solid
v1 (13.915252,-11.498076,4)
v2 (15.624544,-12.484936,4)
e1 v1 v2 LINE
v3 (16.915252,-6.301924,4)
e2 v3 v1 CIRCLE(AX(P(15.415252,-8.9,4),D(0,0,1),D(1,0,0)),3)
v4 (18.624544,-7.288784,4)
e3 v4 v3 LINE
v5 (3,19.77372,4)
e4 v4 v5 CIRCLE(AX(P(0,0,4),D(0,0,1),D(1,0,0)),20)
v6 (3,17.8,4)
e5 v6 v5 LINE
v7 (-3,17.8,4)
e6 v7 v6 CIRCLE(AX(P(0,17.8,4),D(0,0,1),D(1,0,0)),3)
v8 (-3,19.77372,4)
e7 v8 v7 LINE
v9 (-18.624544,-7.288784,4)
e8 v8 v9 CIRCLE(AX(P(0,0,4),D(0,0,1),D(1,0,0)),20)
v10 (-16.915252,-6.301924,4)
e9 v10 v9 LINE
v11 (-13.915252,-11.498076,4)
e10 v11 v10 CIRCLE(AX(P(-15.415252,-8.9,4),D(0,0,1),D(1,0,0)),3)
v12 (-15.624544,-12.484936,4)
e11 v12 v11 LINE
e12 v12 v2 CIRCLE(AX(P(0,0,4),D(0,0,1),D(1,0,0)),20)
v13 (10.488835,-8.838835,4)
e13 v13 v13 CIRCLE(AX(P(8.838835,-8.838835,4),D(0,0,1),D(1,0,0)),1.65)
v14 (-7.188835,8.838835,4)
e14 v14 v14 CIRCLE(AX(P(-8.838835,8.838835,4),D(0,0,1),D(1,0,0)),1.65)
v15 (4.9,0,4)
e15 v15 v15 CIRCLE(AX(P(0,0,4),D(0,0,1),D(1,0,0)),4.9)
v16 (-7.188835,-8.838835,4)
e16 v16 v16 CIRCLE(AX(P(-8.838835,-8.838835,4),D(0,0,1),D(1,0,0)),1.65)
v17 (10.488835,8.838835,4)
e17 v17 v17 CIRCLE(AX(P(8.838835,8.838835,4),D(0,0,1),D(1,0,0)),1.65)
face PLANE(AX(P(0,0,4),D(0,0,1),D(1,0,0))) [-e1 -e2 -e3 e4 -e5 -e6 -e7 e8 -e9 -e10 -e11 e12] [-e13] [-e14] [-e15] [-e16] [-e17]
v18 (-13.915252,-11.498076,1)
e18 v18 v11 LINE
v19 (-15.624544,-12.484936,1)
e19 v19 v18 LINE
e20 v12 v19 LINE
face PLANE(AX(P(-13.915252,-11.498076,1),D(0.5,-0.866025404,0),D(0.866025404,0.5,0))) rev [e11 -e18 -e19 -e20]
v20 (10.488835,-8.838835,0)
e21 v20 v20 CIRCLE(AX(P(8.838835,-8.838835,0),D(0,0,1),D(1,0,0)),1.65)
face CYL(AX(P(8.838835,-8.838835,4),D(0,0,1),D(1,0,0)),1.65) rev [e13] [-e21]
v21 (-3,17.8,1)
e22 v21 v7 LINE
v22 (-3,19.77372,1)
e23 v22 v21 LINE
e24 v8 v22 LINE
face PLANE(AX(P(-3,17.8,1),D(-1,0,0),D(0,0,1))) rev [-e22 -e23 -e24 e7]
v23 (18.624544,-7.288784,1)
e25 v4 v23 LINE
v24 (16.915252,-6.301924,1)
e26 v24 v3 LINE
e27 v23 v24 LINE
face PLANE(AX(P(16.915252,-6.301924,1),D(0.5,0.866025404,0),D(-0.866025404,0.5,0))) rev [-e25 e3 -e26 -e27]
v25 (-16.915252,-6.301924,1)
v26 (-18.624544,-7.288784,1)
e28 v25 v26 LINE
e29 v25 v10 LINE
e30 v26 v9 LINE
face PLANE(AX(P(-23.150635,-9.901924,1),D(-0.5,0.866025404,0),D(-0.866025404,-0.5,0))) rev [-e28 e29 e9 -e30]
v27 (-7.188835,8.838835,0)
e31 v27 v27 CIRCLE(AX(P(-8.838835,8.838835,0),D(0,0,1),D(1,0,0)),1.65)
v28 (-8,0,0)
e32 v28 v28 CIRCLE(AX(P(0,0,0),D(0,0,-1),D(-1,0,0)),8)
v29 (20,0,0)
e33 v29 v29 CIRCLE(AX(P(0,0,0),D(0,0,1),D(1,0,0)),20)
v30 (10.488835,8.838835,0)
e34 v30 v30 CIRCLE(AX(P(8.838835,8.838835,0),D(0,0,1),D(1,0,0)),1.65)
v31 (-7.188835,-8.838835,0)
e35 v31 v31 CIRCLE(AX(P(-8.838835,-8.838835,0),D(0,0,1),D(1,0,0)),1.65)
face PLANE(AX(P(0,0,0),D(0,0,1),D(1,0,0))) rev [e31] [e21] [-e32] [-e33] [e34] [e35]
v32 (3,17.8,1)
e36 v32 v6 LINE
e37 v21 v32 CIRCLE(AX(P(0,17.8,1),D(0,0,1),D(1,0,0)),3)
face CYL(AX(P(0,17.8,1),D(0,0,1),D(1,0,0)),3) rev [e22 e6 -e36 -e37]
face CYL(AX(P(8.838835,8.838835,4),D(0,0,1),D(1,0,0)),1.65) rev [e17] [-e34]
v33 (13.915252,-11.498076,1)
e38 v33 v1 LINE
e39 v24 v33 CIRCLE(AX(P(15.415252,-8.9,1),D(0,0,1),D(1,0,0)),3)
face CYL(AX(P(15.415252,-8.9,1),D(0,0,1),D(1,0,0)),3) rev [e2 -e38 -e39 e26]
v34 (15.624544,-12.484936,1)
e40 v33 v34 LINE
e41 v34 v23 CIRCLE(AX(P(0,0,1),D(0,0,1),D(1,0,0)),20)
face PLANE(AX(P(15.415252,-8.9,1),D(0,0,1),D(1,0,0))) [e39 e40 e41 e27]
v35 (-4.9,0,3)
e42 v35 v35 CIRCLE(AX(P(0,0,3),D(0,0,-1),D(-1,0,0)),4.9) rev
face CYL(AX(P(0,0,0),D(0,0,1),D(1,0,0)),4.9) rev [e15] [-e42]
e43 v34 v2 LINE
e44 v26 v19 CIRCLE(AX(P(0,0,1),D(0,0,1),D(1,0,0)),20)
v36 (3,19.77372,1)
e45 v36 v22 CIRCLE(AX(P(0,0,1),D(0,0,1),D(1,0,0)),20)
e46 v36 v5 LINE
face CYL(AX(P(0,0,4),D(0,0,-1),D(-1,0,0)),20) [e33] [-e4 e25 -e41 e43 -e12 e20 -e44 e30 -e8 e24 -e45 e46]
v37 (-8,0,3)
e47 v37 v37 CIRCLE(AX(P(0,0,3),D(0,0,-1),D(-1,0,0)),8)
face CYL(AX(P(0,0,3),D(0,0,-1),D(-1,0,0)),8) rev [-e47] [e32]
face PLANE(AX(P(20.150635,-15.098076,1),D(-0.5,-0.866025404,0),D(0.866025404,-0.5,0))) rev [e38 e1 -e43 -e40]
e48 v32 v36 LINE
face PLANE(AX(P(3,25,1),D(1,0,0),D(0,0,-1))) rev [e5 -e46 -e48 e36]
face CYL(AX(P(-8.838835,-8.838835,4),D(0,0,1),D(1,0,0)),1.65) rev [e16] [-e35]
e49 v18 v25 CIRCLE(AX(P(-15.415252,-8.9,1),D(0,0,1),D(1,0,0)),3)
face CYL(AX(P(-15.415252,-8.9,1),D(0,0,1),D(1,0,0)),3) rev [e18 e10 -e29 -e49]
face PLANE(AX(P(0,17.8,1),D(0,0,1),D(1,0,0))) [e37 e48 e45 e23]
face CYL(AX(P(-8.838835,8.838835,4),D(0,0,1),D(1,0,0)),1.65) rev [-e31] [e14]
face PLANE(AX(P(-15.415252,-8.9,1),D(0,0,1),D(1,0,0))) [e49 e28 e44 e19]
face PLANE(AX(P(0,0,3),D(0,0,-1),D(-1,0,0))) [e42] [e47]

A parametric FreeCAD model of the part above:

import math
import FreeCAD as App
import Part
import Sketcher

V = App.Vector
Q = App.Units.Quantity

doc = App.newDocument("Part")
params = doc.addObject("Spreadsheet::Sheet", "Params")
for row, (alias, value) in enumerate([
    ("sketch1_diameter", "40 mm"),
    ("pad1_length", "4 mm"),
    ("sketch2_radius", "3 mm"),
    ("sketch2_height", "7.2 mm"),
    ("sketch2_length", "7.2 mm"),
    ("pocket1_length", "3 mm"),
    ("sketch3_diameter", "3.3 mm"),
    ("hole_diameter", "3.3 mm"),
    ("sketch4_diameter", "9.8 mm"),
    ("sketch5_diameter", "16 mm"),
    ("pocket3_length", "3 mm"),
], start=1):
    params.set(f"A{row}", alias)
    params.set(f"B{row}", "=" + value)
    params.setAlias(f"B{row}", alias)

body = doc.addObject("PartDesign::Body", "Body")

# Sketch on XY plane
sketch1 = body.newObject("Sketcher::SketchObject", "Sketch")
sketch1.AttachmentSupport = (doc.getObject("XY_Plane"), [""])
sketch1.MapMode = "FlatFace"
sketch1.addGeometry(Part.Circle(V(0, 0, 0), V(0, 0, 1), 20), False)
sketch1.addConstraint(Sketcher.Constraint("Coincident", 0, 3, -1, 1))
sketch1.addConstraint(Sketcher.Constraint("Diameter", 0, 40.0))
sketch1.setExpression("Constraints[1]", "Params.sketch1_diameter")
pad1 = body.newObject("PartDesign::Pad", "Pad")
pad1.Profile = sketch1
pad1.setExpression("Length", "Params.pad1_length")

# Sketch on XY plane
sketch2 = body.newObject("Sketcher::SketchObject", "Sketch001")
sketch2.AttachmentSupport = (doc.getObject("XY_Plane"), [""])
sketch2.MapMode = "FlatFace"
sketch2.AttachmentOffset = App.Placement(V(0, 0, 4), App.Rotation())
sketch2.addGeometry(Part.LineSegment(V(-3, 25, 0), V(-3, 17.8, 0)), False)
sketch2.addGeometry(Part.ArcOfCircle(Part.Circle(V(0, 17.8, 0), V(0, 0, 1), 3), math.radians(180), math.radians(360)), False)
sketch2.addGeometry(Part.LineSegment(V(3, 17.8, 0), V(3, 25, 0)), False)
sketch2.addGeometry(Part.LineSegment(V(3, 25, 0), V(-3, 25, 0)), False)
sketch2.addGeometry(Part.LineSegment(V(23.150635, -9.901924, 0), V(16.915252, -6.301924, 0)), False)
sketch2.addGeometry(Part.ArcOfCircle(Part.Circle(V(15.415252, -8.9, 0), V(0, 0, 1), 3), math.radians(60), math.radians(240)), False)
sketch2.addGeometry(Part.LineSegment(V(13.915252, -11.498076, 0), V(20.150635, -15.098076, 0)), False)
sketch2.addGeometry(Part.LineSegment(V(20.150635, -15.098076, 0), V(23.150635, -9.901924, 0)), False)
sketch2.addGeometry(Part.LineSegment(V(-20.150635, -15.098076, 0), V(-13.915252, -11.498076, 0)), False)
sketch2.addGeometry(Part.ArcOfCircle(Part.Circle(V(-15.415252, -8.9, 0), V(0, 0, 1), 3), math.radians(-60), math.radians(120)), False)
sketch2.addGeometry(Part.LineSegment(V(-16.915252, -6.301924, 0), V(-23.150635, -9.901924, 0)), False)
sketch2.addGeometry(Part.LineSegment(V(-23.150635, -9.901924, 0), V(-20.150635, -15.098076, 0)), False)
sketch2.addConstraint(Sketcher.Constraint("Tangent", 0, 2, 1, 1))
sketch2.addConstraint(Sketcher.Constraint("Tangent", 1, 2, 2, 1))
sketch2.addConstraint(Sketcher.Constraint("Coincident", 2, 2, 3, 1))
sketch2.addConstraint(Sketcher.Constraint("Coincident", 3, 2, 0, 1))
sketch2.addConstraint(Sketcher.Constraint("Tangent", 4, 2, 5, 1))
sketch2.addConstraint(Sketcher.Constraint("Tangent", 5, 2, 6, 1))
sketch2.addConstraint(Sketcher.Constraint("Coincident", 6, 2, 7, 1))
sketch2.addConstraint(Sketcher.Constraint("Coincident", 7, 2, 4, 1))
sketch2.addConstraint(Sketcher.Constraint("Tangent", 8, 2, 9, 1))
sketch2.addConstraint(Sketcher.Constraint("Tangent", 9, 2, 10, 1))
sketch2.addConstraint(Sketcher.Constraint("Coincident", 10, 2, 11, 1))
sketch2.addConstraint(Sketcher.Constraint("Coincident", 11, 2, 8, 1))
sketch2.addConstraint(Sketcher.Constraint("Vertical", 0))
sketch2.addConstraint(Sketcher.Constraint("Vertical", 2))
sketch2.addConstraint(Sketcher.Constraint("Horizontal", 3))
sketch2.addConstraint(Sketcher.Constraint("Equal", 1, 5))
sketch2.addConstraint(Sketcher.Constraint("Equal", 5, 9))
sketch2.addConstraint(Sketcher.Constraint("Symmetric", 5, 3, 9, 3, -2))
sketch2.addConstraint(Sketcher.Constraint("Symmetric", 7, 2, 10, 2, -2))
sketch2.addConstraint(Sketcher.Constraint("Symmetric", 6, 2, 11, 2, -2))
sketch2.addConstraint(Sketcher.Constraint("PointOnObject", 1, 3, -2))
sketch2.addConstraint(Sketcher.Constraint("Parallel", 4, 6))
sketch2.addConstraint(Sketcher.Constraint("Perpendicular", 6, 7))
sketch2.addConstraint(Sketcher.Constraint("Radius", 1, 3.0))
sketch2.addConstraint(Sketcher.Constraint("Angle", 4, Q("150 deg")))
sketch2.addConstraint(Sketcher.Constraint("DistanceY", 0, 2, 0, 1, 7.2))
sketch2.addConstraint(Sketcher.Constraint("DistanceY", -1, 1, 2, 2, 25.0))
sketch2.addConstraint(Sketcher.Constraint("Distance", 4, 7.2))
sketch2.addConstraint(Sketcher.Constraint("DistanceY", 5, 3, -1, 1, 8.9))
sketch2.addConstraint(Sketcher.Constraint("DistanceX", -1, 1, 5, 3, 15.415252))
sketch2.setExpression("Constraints[23]", "Params.sketch2_radius")
sketch2.setExpression("Constraints[25]", "Params.sketch2_height")
sketch2.setExpression("Constraints[27]", "Params.sketch2_length")
pocket1 = body.newObject("PartDesign::Pocket", "Pocket")
pocket1.Profile = sketch2
pocket1.setExpression("Length", "Params.pocket1_length")

# Sketch on XY plane
sketch3 = body.newObject("Sketcher::SketchObject", "Sketch002")
sketch3.AttachmentSupport = (doc.getObject("XY_Plane"), [""])
sketch3.MapMode = "FlatFace"
sketch3.AttachmentOffset = App.Placement(V(0, 0, 4), App.Rotation())
sketch3.addGeometry(Part.Circle(V(-8.838835, 8.838835, 0), V(0, 0, 1), 1.65), False)
sketch3.addGeometry(Part.Circle(V(8.838835, 8.838835, 0), V(0, 0, 1), 1.65), False)
sketch3.addGeometry(Part.Circle(V(8.838835, -8.838835, 0), V(0, 0, 1), 1.65), False)
sketch3.addGeometry(Part.Circle(V(-8.838835, -8.838835, 0), V(0, 0, 1), 1.65), False)
sketch3.addConstraint(Sketcher.Constraint("Equal", 0, 1))
sketch3.addConstraint(Sketcher.Constraint("Equal", 1, 2))
sketch3.addConstraint(Sketcher.Constraint("Equal", 2, 3))
sketch3.addConstraint(Sketcher.Constraint("Symmetric", 0, 3, 2, 3, -1, 1))
sketch3.addConstraint(Sketcher.Constraint("Symmetric", 1, 3, 3, 3, -1, 1))
sketch3.addConstraint(Sketcher.Constraint("Symmetric", 0, 3, 1, 3, -2))
sketch3.addConstraint(Sketcher.Constraint("Diameter", 0, 3.3))
sketch3.addConstraint(Sketcher.Constraint("DistanceX", 0, 3, 1, 3, 17.67767))
sketch3.addConstraint(Sketcher.Constraint("DistanceY", 2, 3, 1, 3, 17.67767))
sketch3.setExpression("Constraints[6]", "Params.sketch3_diameter")
doc.recompute()
hole = body.newObject("PartDesign::Hole", "Hole")
hole.Profile = sketch3
hole.ThreadType = "None"
hole.setExpression("Diameter", "Params.hole_diameter")
hole.DepthType = "ThroughAll"

# Sketch on XY plane
sketch4 = body.newObject("Sketcher::SketchObject", "Sketch003")
sketch4.AttachmentSupport = (doc.getObject("XY_Plane"), [""])
sketch4.MapMode = "FlatFace"
sketch4.AttachmentOffset = App.Placement(V(0, 0, 4), App.Rotation())
sketch4.addGeometry(Part.Circle(V(0, 0, 0), V(0, 0, 1), 4.9), False)
sketch4.addConstraint(Sketcher.Constraint("Coincident", 0, 3, -1, 1))
sketch4.addConstraint(Sketcher.Constraint("Diameter", 0, 9.8))
sketch4.setExpression("Constraints[1]", "Params.sketch4_diameter")
pocket2 = body.newObject("PartDesign::Pocket", "Pocket001")
pocket2.Profile = sketch4
pocket2.Type = "ThroughAll"

# Sketch on XY plane
sketch5 = body.newObject("Sketcher::SketchObject", "Sketch004")
sketch5.AttachmentSupport = (doc.getObject("XY_Plane"), [""])
sketch5.MapMode = "FlatFace"
sketch5.addGeometry(Part.Circle(V(0, 0, 0), V(0, 0, 1), 8), False)
sketch5.addConstraint(Sketcher.Constraint("Coincident", 0, 3, -1, 1))
sketch5.addConstraint(Sketcher.Constraint("Diameter", 0, 16.0))
sketch5.setExpression("Constraints[1]", "Params.sketch5_diameter")
pocket3 = body.newObject("PartDesign::Pocket", "Pocket002")
pocket3.Profile = sketch5
pocket3.setExpression("Length", "Params.pocket3_length")
pocket3.Reversed = True

doc.recompute()
